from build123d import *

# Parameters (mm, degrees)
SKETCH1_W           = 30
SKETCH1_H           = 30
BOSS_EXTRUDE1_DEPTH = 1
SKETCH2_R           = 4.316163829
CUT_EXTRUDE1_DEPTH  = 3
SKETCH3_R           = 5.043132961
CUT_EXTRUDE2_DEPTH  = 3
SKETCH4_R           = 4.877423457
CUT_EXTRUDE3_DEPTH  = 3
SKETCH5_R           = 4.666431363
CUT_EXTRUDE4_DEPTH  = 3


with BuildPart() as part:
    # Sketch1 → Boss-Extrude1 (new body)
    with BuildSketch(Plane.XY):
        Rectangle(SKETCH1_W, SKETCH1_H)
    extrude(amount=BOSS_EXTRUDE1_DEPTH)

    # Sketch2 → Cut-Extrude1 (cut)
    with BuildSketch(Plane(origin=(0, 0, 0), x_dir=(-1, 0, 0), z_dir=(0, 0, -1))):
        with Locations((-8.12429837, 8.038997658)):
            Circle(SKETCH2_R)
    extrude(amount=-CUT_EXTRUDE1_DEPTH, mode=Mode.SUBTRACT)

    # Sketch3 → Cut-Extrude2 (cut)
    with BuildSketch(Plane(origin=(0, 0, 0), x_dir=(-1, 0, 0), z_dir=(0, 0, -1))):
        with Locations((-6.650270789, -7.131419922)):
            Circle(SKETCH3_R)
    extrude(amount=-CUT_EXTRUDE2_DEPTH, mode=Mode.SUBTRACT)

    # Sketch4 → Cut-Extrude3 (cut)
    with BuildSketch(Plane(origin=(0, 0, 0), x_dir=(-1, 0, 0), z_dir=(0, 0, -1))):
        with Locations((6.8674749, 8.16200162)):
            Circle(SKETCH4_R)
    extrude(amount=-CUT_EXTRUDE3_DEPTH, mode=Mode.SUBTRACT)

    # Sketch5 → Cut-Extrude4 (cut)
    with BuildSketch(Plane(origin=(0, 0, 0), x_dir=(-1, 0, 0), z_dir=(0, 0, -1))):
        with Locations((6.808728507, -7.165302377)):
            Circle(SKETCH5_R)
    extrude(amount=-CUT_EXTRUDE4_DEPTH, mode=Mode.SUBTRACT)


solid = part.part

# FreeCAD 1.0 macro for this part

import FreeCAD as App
import Part
import Sketcher

V = App.Vector
Q = App.Units.Quantity


def add_polygon(sketch, points):
    """Adds a closed chain of lines whose ends are joined by coincident constraints."""
    first, n = sketch.GeometryCount, len(points)
    for a, b in zip(points, points[1:] + points[:1]):
        sketch.addGeometry(Part.LineSegment(App.Vector(*a, 0), App.Vector(*b, 0)), False)
    for i in range(n):
        sketch.addConstraint(Sketcher.Constraint("Coincident", first + i, 2, first + (i + 1) % n, 1))

doc = App.newDocument("Part")
body = doc.addObject("PartDesign::Body", "Body")

# Sketch on XY plane
sketch1 = doc.addObject("Sketcher::SketchObject", "Sketch")
body.addObject(sketch1)
sketch1.AttachmentSupport = (doc.XY_Plane, [""])
sketch1.MapMode = "FlatFace"
add_polygon(sketch1, [(-15, 15), (-15, -15), (15, -15), (15, 15)])  # lines 0-3
sketch1.addConstraint([
    Sketcher.Constraint("Vertical", 0),
    Sketcher.Constraint("Horizontal", 1),
    Sketcher.Constraint("Vertical", 2),
    Sketcher.Constraint("Horizontal", 3),
    Sketcher.Constraint("Symmetric", 0, 2, 2, 2, -1, 1),
    Sketcher.Constraint("Equal", 3, 0),
    Sketcher.Constraint("DistanceX", 1, 1, 1, 2, Q("30 mm")),
])
pad1 = doc.addObject("PartDesign::Pad", "Pad")
body.addObject(pad1)
pad1.Profile = sketch1
pad1.Length = 1

# Sketch on XY plane
sketch2 = doc.addObject("Sketcher::SketchObject", "Sketch001")
body.addObject(sketch2)
sketch2.AttachmentSupport = (doc.XY_Plane, [""])
sketch2.MapMode = "FlatFace"
sketch2.addGeometry(Part.Circle(V(8.1, 8, 0), V(0, 0, 1), 4.3), False)
sketch2.addConstraint([
    Sketcher.Constraint("Diameter", 0, Q("8.632328 mm")),
    Sketcher.Constraint("DistanceX", -1, 1, 0, 3, Q("8.124298 mm")),
    Sketcher.Constraint("DistanceY", -1, 1, 0, 3, Q("8.038998 mm")),
])
pocket1 = doc.addObject("PartDesign::Pocket", "Pocket")
body.addObject(pocket1)
pocket1.Profile = sketch2
pocket1.Length = 3
pocket1.Reversed = True

# Sketch on XY plane
sketch3 = doc.addObject("Sketcher::SketchObject", "Sketch002")
body.addObject(sketch3)
sketch3.AttachmentSupport = (doc.XY_Plane, [""])
sketch3.MapMode = "FlatFace"
sketch3.addGeometry(Part.Circle(V(7, -7, 0), V(0, 0, 1), 5), False)
sketch3.addConstraint([
    Sketcher.Constraint("Diameter", 0, Q("10.086266 mm")),
    Sketcher.Constraint("DistanceX", -1, 1, 0, 3, Q("6.650271 mm")),
    Sketcher.Constraint("DistanceY", 0, 3, -1, 1, Q("7.13142 mm")),
])
pocket2 = doc.addObject("PartDesign::Pocket", "Pocket001")
body.addObject(pocket2)
pocket2.Profile = sketch3
pocket2.Length = 3
pocket2.Reversed = True

# Sketch on XY plane
sketch4 = doc.addObject("Sketcher::SketchObject", "Sketch003")
body.addObject(sketch4)
sketch4.AttachmentSupport = (doc.XY_Plane, [""])
sketch4.MapMode = "FlatFace"
sketch4.addGeometry(Part.Circle(V(-6.9, 8.2, 0), V(0, 0, 1), 4.9), False)
sketch4.addConstraint([
    Sketcher.Constraint("Diameter", 0, Q("9.754847 mm")),
    Sketcher.Constraint("DistanceY", -1, 1, 0, 3, Q("8.162002 mm")),
    Sketcher.Constraint("DistanceX", 0, 3, -1, 1, Q("6.867475 mm")),
])
pocket3 = doc.addObject("PartDesign::Pocket", "Pocket002")
body.addObject(pocket3)
pocket3.Profile = sketch4
pocket3.Length = 3
pocket3.Reversed = True

# Sketch on XY plane
sketch5 = doc.addObject("Sketcher::SketchObject", "Sketch004")
body.addObject(sketch5)
sketch5.AttachmentSupport = (doc.XY_Plane, [""])
sketch5.MapMode = "FlatFace"
sketch5.addGeometry(Part.Circle(V(-6.8, -7.2, 0), V(0, 0, 1), 4.7), False)
sketch5.addConstraint([
    Sketcher.Constraint("Diameter", 0, Q("9.332863 mm")),
    Sketcher.Constraint("DistanceX", 0, 3, -1, 1, Q("6.808729 mm")),
    Sketcher.Constraint("DistanceY", 0, 3, -1, 1, Q("7.165302 mm")),
])
pocket4 = doc.addObject("PartDesign::Pocket", "Pocket003")
body.addObject(pocket4)
pocket4.Profile = sketch5
pocket4.Length = 3
pocket4.Reversed = True

doc.recompute()
